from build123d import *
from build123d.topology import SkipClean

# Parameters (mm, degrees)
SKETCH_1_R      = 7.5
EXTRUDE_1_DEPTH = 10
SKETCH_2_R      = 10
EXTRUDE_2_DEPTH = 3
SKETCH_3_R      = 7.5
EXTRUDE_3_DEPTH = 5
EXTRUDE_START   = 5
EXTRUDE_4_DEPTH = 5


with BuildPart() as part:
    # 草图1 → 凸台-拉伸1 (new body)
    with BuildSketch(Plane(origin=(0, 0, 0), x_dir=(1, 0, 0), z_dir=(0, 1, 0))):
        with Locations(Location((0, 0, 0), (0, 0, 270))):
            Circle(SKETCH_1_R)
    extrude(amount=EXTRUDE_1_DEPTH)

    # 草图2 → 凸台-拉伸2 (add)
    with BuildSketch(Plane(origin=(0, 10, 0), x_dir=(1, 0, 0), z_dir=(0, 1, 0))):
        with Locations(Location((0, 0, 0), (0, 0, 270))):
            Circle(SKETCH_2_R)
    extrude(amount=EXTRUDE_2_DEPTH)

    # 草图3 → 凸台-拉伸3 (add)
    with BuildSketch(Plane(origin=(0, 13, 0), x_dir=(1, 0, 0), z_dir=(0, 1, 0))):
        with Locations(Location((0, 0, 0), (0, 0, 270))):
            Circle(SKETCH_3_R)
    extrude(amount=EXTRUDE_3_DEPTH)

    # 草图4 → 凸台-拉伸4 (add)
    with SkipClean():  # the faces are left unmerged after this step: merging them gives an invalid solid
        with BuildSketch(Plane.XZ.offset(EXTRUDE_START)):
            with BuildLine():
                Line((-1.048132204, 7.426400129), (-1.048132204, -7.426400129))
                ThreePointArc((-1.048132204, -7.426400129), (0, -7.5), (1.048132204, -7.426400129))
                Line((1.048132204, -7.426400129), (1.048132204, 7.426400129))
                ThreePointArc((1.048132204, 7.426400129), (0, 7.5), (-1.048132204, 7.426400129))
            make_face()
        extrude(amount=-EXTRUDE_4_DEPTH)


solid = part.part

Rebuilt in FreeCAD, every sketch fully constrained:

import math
import FreeCAD as App
import Part
import Sketcher

V = App.Vector
Q = App.Units.Quantity

doc = App.newDocument("Part")
body = doc.addObject("PartDesign::Body", "Body")

sketch1 = body.newObject("Sketcher::SketchObject", "Sketch")
sketch1.AttachmentSupport = (doc.getObject("XZ_Plane"), [""])
sketch1.MapMode = "FlatFace"
sketch1.addGeometry(Part.Circle(V(0, 0, 0), V(0, 0, 1), 7.5), False)
sketch1.addConstraint([
    Sketcher.Constraint("Coincident", 0, 3, -1, 1),
    Sketcher.Constraint("Diameter", 0, Q("15 mm")),
])
pad1 = body.newObject("PartDesign::Pad", "Pad")
pad1.Profile = sketch1
pad1.Length = 10
pad1.Reversed = True

sketch2 = body.newObject("Sketcher::SketchObject", "Sketch001")
sketch2.AttachmentSupport = (doc.getObject("XZ_Plane"), [""])
sketch2.MapMode = "FlatFace"
sketch2.AttachmentOffset = App.Placement(V(0, 0, -10), App.Rotation())
sketch2.addGeometry(Part.Circle(V(0, 0, 0), V(0, 0, 1), 10), False)
sketch2.addConstraint([
    Sketcher.Constraint("Coincident", 0, 3, -1, 1),
    Sketcher.Constraint("Diameter", 0, Q("20 mm")),
])
pad2 = body.newObject("PartDesign::Pad", "Pad001")
pad2.Profile = sketch2
pad2.Length = 3
pad2.Reversed = True

sketch3 = body.newObject("Sketcher::SketchObject", "Sketch002")
sketch3.AttachmentSupport = (doc.getObject("XZ_Plane"), [""])
sketch3.MapMode = "FlatFace"
sketch3.AttachmentOffset = App.Placement(V(0, 0, -13), App.Rotation())
sketch3.addGeometry(Part.Circle(V(0, 0, 0), V(0, 0, 1), 7.5), False)
sketch3.addConstraint([
    Sketcher.Constraint("Coincident", 0, 3, -1, 1),
    Sketcher.Constraint("Diameter", 0, Q("15 mm")),
])
pad3 = body.newObject("PartDesign::Pad", "Pad002")
pad3.Profile = sketch3
pad3.Length = 5
pad3.Reversed = True

sketch4 = body.newObject("Sketcher::SketchObject", "Sketch003")
sketch4.AttachmentSupport = (doc.getObject("XZ_Plane"), [""])
sketch4.MapMode = "FlatFace"
sketch4.AttachmentOffset = App.Placement(V(0, 0, 5), App.Rotation())
sketch4.addGeometry([
    Part.LineSegment(V(-1.048132, 7.4264, 0), V(-1.048132, -7.4264, 0)),
    Part.ArcOfCircle(Part.Circle(V(0, 0, 0), V(0, 0, 1), 7.5), math.radians(-98.033436), math.radians(-81.966564)),
    Part.LineSegment(V(1.048132, -7.4264, 0), V(1.048132, 7.4264, 0)),
    Part.ArcOfCircle(Part.Circle(V(0, 0, 0), V(0, 0, 1), 7.5), math.radians(81.966564), math.radians(98.033436)),
], False)
sketch4.addConstraint([
    Sketcher.Constraint("Coincident", 0, 2, 1, 1),
    Sketcher.Constraint("Coincident", 1, 2, 2, 1),
    Sketcher.Constraint("Coincident", 2, 2, 3, 1),
    Sketcher.Constraint("Coincident", 3, 2, 0, 1),
    Sketcher.Constraint("Vertical", 0),
    Sketcher.Constraint("Vertical", 2),
    Sketcher.Constraint("Coincident", 1, 3, -1, 1),
    Sketcher.Constraint("Coincident", 3, 3, -1, 1),
    Sketcher.Constraint("Equal", 1, 3),
    Sketcher.Constraint("Horizontal", 0, 2, 1, 2),
    Sketcher.Constraint("Radius", 1, Q("7.5 mm")),
    Sketcher.Constraint("DistanceY", 0, 2, 0, 1, Q("14.8528 mm")),
])
pad4 = body.newObject("PartDesign::Pad", "Pad003")
pad4.Profile = sketch4
pad4.Length = 5
pad4.Reversed = True

doc.recompute()
